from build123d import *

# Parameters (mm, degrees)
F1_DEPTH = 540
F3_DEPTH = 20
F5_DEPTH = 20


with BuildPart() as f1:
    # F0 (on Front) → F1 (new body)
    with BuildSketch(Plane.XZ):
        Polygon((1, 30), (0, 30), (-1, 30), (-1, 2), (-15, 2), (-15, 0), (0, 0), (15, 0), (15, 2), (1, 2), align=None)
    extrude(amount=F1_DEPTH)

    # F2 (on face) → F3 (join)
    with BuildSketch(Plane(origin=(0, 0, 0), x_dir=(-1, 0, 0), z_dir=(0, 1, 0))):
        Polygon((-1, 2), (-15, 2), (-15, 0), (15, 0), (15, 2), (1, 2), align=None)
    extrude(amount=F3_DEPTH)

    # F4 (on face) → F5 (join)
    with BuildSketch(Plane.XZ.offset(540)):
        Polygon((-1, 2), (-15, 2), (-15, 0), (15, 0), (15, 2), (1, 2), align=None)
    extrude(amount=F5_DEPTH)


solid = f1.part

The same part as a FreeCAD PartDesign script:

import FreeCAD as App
import Part
import Sketcher
from FreeCAD import Vector

doc = App.newDocument("Part")
params = doc.addObject("Spreadsheet::Sheet", "Params")
for row, (alias, value) in enumerate([
    ("sketch1_width", "2 mm"),
    ("sketch1_width2", "14 mm"),
    ("sketch1_height", "28 mm"),
    ("pad1_length", "540 mm"),
    ("sketch2_width", "30 mm"),
    ("sketch2_height", "2 mm"),
    ("pad2_length", "20 mm"),
    ("sketch3_width", "30 mm"),
    ("sketch3_height", "2 mm"),
    ("pad3_length", "20 mm"),
], start=1):
    params.set(f"A{row}", alias)
    params.set(f"B{row}", "=" + value)
    params.setAlias(f"B{row}", alias)

body = doc.addObject("PartDesign::Body", "Body")

# Sketch on XZ plane
sketch1 = doc.addObject("Sketcher::SketchObject", "Sketch")
body.addObject(sketch1)
sketch1.AttachmentSupport = (doc.XZ_Plane, [""])
sketch1.MapMode = "FlatFace"
sketch1.addGeometry(Part.LineSegment(Vector(1, 30, 0), Vector(-1, 30, 0)), False)
sketch1.addGeometry(Part.LineSegment(Vector(-1, 30, 0), Vector(-1, 2, 0)), False)
sketch1.addGeometry(Part.LineSegment(Vector(-1, 2, 0), Vector(-15, 2, 0)), False)
sketch1.addGeometry(Part.LineSegment(Vector(-15, 2, 0), Vector(-15, 0, 0)), False)
sketch1.addGeometry(Part.LineSegment(Vector(-15, 0, 0), Vector(15, 0, 0)), False)
sketch1.addGeometry(Part.LineSegment(Vector(15, 0, 0), Vector(15, 2, 0)), False)
sketch1.addGeometry(Part.LineSegment(Vector(15, 2, 0), Vector(1, 2, 0)), False)
sketch1.addGeometry(Part.LineSegment(Vector(1, 2, 0), Vector(1, 30, 0)), False)
sketch1.addConstraint(Sketcher.Constraint("Coincident", 0, 2, 1, 1))
sketch1.addConstraint(Sketcher.Constraint("Coincident", 1, 2, 2, 1))
sketch1.addConstraint(Sketcher.Constraint("Coincident", 2, 2, 3, 1))
sketch1.addConstraint(Sketcher.Constraint("Coincident", 3, 2, 4, 1))
sketch1.addConstraint(Sketcher.Constraint("Coincident", 4, 2, 5, 1))
sketch1.addConstraint(Sketcher.Constraint("Coincident", 5, 2, 6, 1))
sketch1.addConstraint(Sketcher.Constraint("Coincident", 6, 2, 7, 1))
sketch1.addConstraint(Sketcher.Constraint("Coincident", 7, 2, 0, 1))
sketch1.addConstraint(Sketcher.Constraint("Horizontal", 0))
sketch1.addConstraint(Sketcher.Constraint("Vertical", 1))
sketch1.addConstraint(Sketcher.Constraint("Horizontal", 2))
sketch1.addConstraint(Sketcher.Constraint("Vertical", 3))
sketch1.addConstraint(Sketcher.Constraint("Horizontal", 4))
sketch1.addConstraint(Sketcher.Constraint("Vertical", 5))
sketch1.addConstraint(Sketcher.Constraint("Horizontal", 6))
sketch1.addConstraint(Sketcher.Constraint("Vertical", 7))
sketch1.addConstraint(Sketcher.Constraint("Symmetric", 3, 2, 4, 2, -1, 1))
sketch1.addConstraint(Sketcher.Constraint("Symmetric", 1, 2, 6, 2, -2))
sketch1.addConstraint(Sketcher.Constraint("Equal", 0, 3))
sketch1.addConstraint(Sketcher.Constraint("DistanceX", 0, 2, 0, 1, 2.0))
sketch1.addConstraint(Sketcher.Constraint("DistanceX", 2, 2, 2, 1, 14.0))
sketch1.addConstraint(Sketcher.Constraint("DistanceY", 1, 2, 1, 1, 28.0))
sketch1.setExpression("Constraints[19]", "Params.sketch1_width")
sketch1.setExpression("Constraints[20]", "Params.sketch1_width2")
sketch1.setExpression("Constraints[21]", "Params.sketch1_height")
pad1 = doc.addObject("PartDesign::Pad", "Pad")
body.addObject(pad1)
pad1.Profile = sketch1
pad1.setExpression("Length", "Params.pad1_length")

# Sketch on XZ plane
sketch2 = doc.addObject("Sketcher::SketchObject", "Sketch001")
body.addObject(sketch2)
sketch2.AttachmentSupport = (doc.XZ_Plane, [""])
sketch2.MapMode = "FlatFace"
sketch2.addGeometry(Part.LineSegment(Vector(15, 2, 0), Vector(15, 0, 0)), False)
sketch2.addGeometry(Part.LineSegment(Vector(15, 0, 0), Vector(-15, 0, 0)), False)
sketch2.addGeometry(Part.LineSegment(Vector(-15, 0, 0), Vector(-15, 2, 0)), False)
sketch2.addGeometry(Part.LineSegment(Vector(-15, 2, 0), Vector(15, 2, 0)), False)
sketch2.addConstraint(Sketcher.Constraint("Coincident", 0, 2, 1, 1))
sketch2.addConstraint(Sketcher.Constraint("Coincident", 1, 2, 2, 1))
sketch2.addConstraint(Sketcher.Constraint("Coincident", 2, 2, 3, 1))
sketch2.addConstraint(Sketcher.Constraint("Coincident", 3, 2, 0, 1))
sketch2.addConstraint(Sketcher.Constraint("Vertical", 0))
sketch2.addConstraint(Sketcher.Constraint("Horizontal", 1))
sketch2.addConstraint(Sketcher.Constraint("Vertical", 2))
sketch2.addConstraint(Sketcher.Constraint("Horizontal", 3))
sketch2.addConstraint(Sketcher.Constraint("Symmetric", 0, 2, 1, 2, -1, 1))
sketch2.addConstraint(Sketcher.Constraint("DistanceX", 1, 2, 1, 1, 30.0))
sketch2.addConstraint(Sketcher.Constraint("DistanceY", 0, 2, 0, 1, 2.0))
sketch2.setExpression("Constraints[9]", "Params.sketch2_width")
sketch2.setExpression("Constraints[10]", "Params.sketch2_height")
pad2 = doc.addObject("PartDesign::Pad", "Pad001")
body.addObject(pad2)
pad2.Profile = sketch2
pad2.setExpression("Length", "Params.pad2_length")
pad2.Reversed = True

# Sketch on XZ plane
sketch3 = doc.addObject("Sketcher::SketchObject", "Sketch002")
body.addObject(sketch3)
sketch3.AttachmentSupport = (doc.XZ_Plane, [""])
sketch3.MapMode = "FlatFace"
sketch3.AttachmentOffset = App.Placement(Vector(0, 0, 540), App.Rotation())
sketch3.addGeometry(Part.LineSegment(Vector(-15, 2, 0), Vector(-15, 0, 0)), False)
sketch3.addGeometry(Part.LineSegment(Vector(-15, 0, 0), Vector(15, 0, 0)), False)
sketch3.addGeometry(Part.LineSegment(Vector(15, 0, 0), Vector(15, 2, 0)), False)
sketch3.addGeometry(Part.LineSegment(Vector(15, 2, 0), Vector(-15, 2, 0)), False)
sketch3.addConstraint(Sketcher.Constraint("Coincident", 0, 2, 1, 1))
sketch3.addConstraint(Sketcher.Constraint("Coincident", 1, 2, 2, 1))
sketch3.addConstraint(Sketcher.Constraint("Coincident", 2, 2, 3, 1))
sketch3.addConstraint(Sketcher.Constraint("Coincident", 3, 2, 0, 1))
sketch3.addConstraint(Sketcher.Constraint("Vertical", 0))
sketch3.addConstraint(Sketcher.Constraint("Horizontal", 1))
sketch3.addConstraint(Sketcher.Constraint("Vertical", 2))
sketch3.addConstraint(Sketcher.Constraint("Horizontal", 3))
sketch3.addConstraint(Sketcher.Constraint("Symmetric", 0, 2, 1, 2, -1, 1))
sketch3.addConstraint(Sketcher.Constraint("DistanceX", 1, 1, 1, 2, 30.0))
sketch3.addConstraint(Sketcher.Constraint("DistanceY", 0, 2, 0, 1, 2.0))
sketch3.setExpression("Constraints[9]", "Params.sketch3_width")
sketch3.setExpression("Constraints[10]", "Params.sketch3_height")
pad3 = doc.addObject("PartDesign::Pad", "Pad002")
body.addObject(pad3)
pad3.Profile = sketch3
pad3.setExpression("Length", "Params.pad3_length")

doc.recompute()
